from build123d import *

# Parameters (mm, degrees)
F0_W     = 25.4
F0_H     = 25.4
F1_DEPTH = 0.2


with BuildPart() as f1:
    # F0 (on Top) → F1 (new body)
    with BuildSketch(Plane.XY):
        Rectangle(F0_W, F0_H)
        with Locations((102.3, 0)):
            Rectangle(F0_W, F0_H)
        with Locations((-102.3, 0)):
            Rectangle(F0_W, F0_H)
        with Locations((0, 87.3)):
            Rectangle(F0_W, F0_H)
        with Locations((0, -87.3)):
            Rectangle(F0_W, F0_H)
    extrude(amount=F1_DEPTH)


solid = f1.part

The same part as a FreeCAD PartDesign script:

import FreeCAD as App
import Part
import Sketcher

V = App.Vector
Q = App.Units.Quantity


def add_polygon(sketch, points):
    """Adds a closed chain of lines whose ends are joined by coincident constraints."""
    first, n = sketch.GeometryCount, len(points)
    for a, b in zip(points, points[1:] + points[:1]):
        sketch.addGeometry(Part.LineSegment(App.Vector(*a, 0), App.Vector(*b, 0)), False)
    for i in range(n):
        sketch.addConstraint(Sketcher.Constraint("Coincident", first + i, 2, first + (i + 1) % n, 1))

doc = App.newDocument("Part")
params = doc.addObject("Spreadsheet::Sheet", "Params")
for row, (alias, value) in enumerate([
    ("sketch1_width", "25.4 mm"),
    ("pad1_length", "0.2 mm"),
], start=1):
    params.set(f"A{row}", alias)
    params.set(f"B{row}", "=" + value)
    params.setAlias(f"B{row}", alias)

body = doc.addObject("PartDesign::Body", "Body")
body.AllowCompound = True

# Sketch on XY plane
sketch1 = doc.addObject("Sketcher::SketchObject", "Sketch")
body.addObject(sketch1)
sketch1.AttachmentSupport = (doc.XY_Plane, [""])
sketch1.MapMode = "FlatFace"
add_polygon(sketch1, [(-12.7, 12.7), (-12.7, -12.7), (12.7, -12.7), (12.7, 12.7)])  # lines 0-3
add_polygon(sketch1, [(89.6, 12.7), (89.6, -12.7), (115, -12.7), (115, 12.7)])  # lines 4-7
add_polygon(sketch1, [(-115, 12.7), (-115, -12.7), (-89.6, -12.7), (-89.6, 12.7)])  # lines 8-11
add_polygon(sketch1, [(-12.7, 100), (-12.7, 74.6), (12.7, 74.6), (12.7, 100)])  # lines 12-15
add_polygon(sketch1, [(-12.7, -74.6), (-12.7, -100), (12.7, -100), (12.7, -74.6)])  # lines 16-19
sketch1.addConstraint(Sketcher.Constraint("Vertical", 0))
sketch1.addConstraint(Sketcher.Constraint("Horizontal", 1))
sketch1.addConstraint(Sketcher.Constraint("Vertical", 2))
sketch1.addConstraint(Sketcher.Constraint("Horizontal", 3))
sketch1.addConstraint(Sketcher.Constraint("Vertical", 4))
sketch1.addConstraint(Sketcher.Constraint("Horizontal", 5))
sketch1.addConstraint(Sketcher.Constraint("Vertical", 6))
sketch1.addConstraint(Sketcher.Constraint("Horizontal", 7))
sketch1.addConstraint(Sketcher.Constraint("Vertical", 8))
sketch1.addConstraint(Sketcher.Constraint("Horizontal", 9))
sketch1.addConstraint(Sketcher.Constraint("Vertical", 10))
sketch1.addConstraint(Sketcher.Constraint("Horizontal", 11))
sketch1.addConstraint(Sketcher.Constraint("Vertical", 12))
sketch1.addConstraint(Sketcher.Constraint("Horizontal", 13))
sketch1.addConstraint(Sketcher.Constraint("Vertical", 14))
sketch1.addConstraint(Sketcher.Constraint("Horizontal", 15))
sketch1.addConstraint(Sketcher.Constraint("Vertical", 16))
sketch1.addConstraint(Sketcher.Constraint("Horizontal", 17))
sketch1.addConstraint(Sketcher.Constraint("Vertical", 18))
sketch1.addConstraint(Sketcher.Constraint("Horizontal", 19))
sketch1.addConstraint(Sketcher.Constraint("Symmetric", 0, 2, 2, 2, -1, 1))
sketch1.addConstraint(Sketcher.Constraint("Symmetric", 6, 2, 8, 2, -1, 1))
sketch1.addConstraint(Sketcher.Constraint("Symmetric", 4, 2, 10, 2, -1, 1))
sketch1.addConstraint(Sketcher.Constraint("Symmetric", 14, 2, 16, 2, -1, 1))
sketch1.addConstraint(Sketcher.Constraint("Symmetric", 12, 2, 18, 2, -1, 1))
sketch1.addConstraint(Sketcher.Constraint("Horizontal", 1, 2, 4, 2))
sketch1.addConstraint(Sketcher.Constraint("Horizontal", 3, 2, 6, 2))
sketch1.addConstraint(Sketcher.Constraint("Vertical", 3, 2, 12, 2))
sketch1.addConstraint(Sketcher.Constraint("Vertical", 2, 2, 13, 2))
sketch1.addConstraint(Sketcher.Constraint("Equal", 3, 5))
sketch1.addConstraint(Sketcher.Constraint("Equal", 19, 0))
sketch1.addConstraint(Sketcher.Constraint("Equal", 10, 12))
sketch1.addConstraint(Sketcher.Constraint("DistanceX", 1, 1, 1, 2, Q("25.4 mm")))
sketch1.addConstraint(Sketcher.Constraint("DistanceX", -1, 1, 5, 2, Q("115 mm")))
sketch1.addConstraint(Sketcher.Constraint("DistanceY", -1, 1, 14, 2, Q("100 mm")))
sketch1.setExpression("Constraints[52]", "Params.sketch1_width")
pad1 = doc.addObject("PartDesign::Pad", "Pad")
body.addObject(pad1)
pad1.Profile = sketch1
pad1.setExpression("Length", "Params.pad1_length")

doc.recompute()
